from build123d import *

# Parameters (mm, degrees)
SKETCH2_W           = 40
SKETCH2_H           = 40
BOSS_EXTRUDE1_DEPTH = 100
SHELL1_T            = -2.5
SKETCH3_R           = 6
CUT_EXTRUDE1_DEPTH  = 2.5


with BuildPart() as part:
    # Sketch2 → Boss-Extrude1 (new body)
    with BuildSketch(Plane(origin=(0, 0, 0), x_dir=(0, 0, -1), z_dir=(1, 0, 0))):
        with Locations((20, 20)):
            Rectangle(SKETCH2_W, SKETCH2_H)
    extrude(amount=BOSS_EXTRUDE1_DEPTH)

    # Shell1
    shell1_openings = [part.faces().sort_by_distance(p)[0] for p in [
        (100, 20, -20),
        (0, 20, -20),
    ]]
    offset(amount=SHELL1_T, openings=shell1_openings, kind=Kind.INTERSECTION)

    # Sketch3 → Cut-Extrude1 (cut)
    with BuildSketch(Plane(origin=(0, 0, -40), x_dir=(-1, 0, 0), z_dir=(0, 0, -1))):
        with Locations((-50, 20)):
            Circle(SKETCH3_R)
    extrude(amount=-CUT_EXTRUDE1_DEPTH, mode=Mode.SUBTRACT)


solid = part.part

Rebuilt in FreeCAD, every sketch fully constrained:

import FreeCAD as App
import Part
import Sketcher
from FreeCAD import Vector


def faces_at(feature, points):
    """Names of the faces that lie closest to the given points."""
    faces = feature.Shape.Faces
    near = lambda p: min(range(len(faces)), key=lambda i: faces[i].distToShape(Part.Vertex(*p))[0])
    return sorted({f"Face{near(p) + 1}" for p in points})


def add_polygon(sketch, points):
    """Adds a closed chain of lines whose ends are joined by coincident constraints."""
    first, n = sketch.GeometryCount, len(points)
    for a, b in zip(points, points[1:] + points[:1]):
        sketch.addGeometry(Part.LineSegment(App.Vector(*a, 0), App.Vector(*b, 0)), False)
    for i in range(n):
        sketch.addConstraint(Sketcher.Constraint("Coincident", first + i, 2, first + (i + 1) % n, 1))

doc = App.newDocument("Part")
params = doc.addObject("Spreadsheet::Sheet", "Params")
for row, (alias, value) in enumerate([
    ("sketch1_width", "40 mm"),
    ("pad1_length", "100 mm"),
    ("thickness_wall", "2.5 mm"),
    ("sketch2_diameter", "12 mm"),
    ("pocket1_length", "2.5 mm"),
], start=1):
    params.set(f"A{row}", alias)
    params.set(f"B{row}", "=" + value)
    params.setAlias(f"B{row}", alias)

body = doc.addObject("PartDesign::Body", "Body")

# Sketch on YZ plane
sketch1 = body.newObject("Sketcher::SketchObject", "Sketch")
sketch1.AttachmentSupport = (doc.getObject("YZ_Plane"), [""])
sketch1.MapMode = "FlatFace"
add_polygon(sketch1, [(40, 0), (0, 0), (0, -40), (40, -40)])  # lines 0-3
sketch1.addConstraint([
    Sketcher.Constraint("Horizontal", 0),
    Sketcher.Constraint("Vertical", 1),
    Sketcher.Constraint("Horizontal", 2),
    Sketcher.Constraint("Vertical", 3),
    Sketcher.Constraint("Coincident", 0, 2, -1, 1),
    Sketcher.Constraint("Equal", 2, 1),
    Sketcher.Constraint("DistanceX", 0, 2, 0, 1, 40.0),
])
sketch1.setExpression("Constraints[10]", "Params.sketch1_width")
pad1 = body.newObject("PartDesign::Pad", "Pad")
pad1.Profile = sketch1
pad1.setExpression("Length", "Params.pad1_length")
doc.recompute()

thickness = body.newObject("PartDesign::Thickness", "Thickness")
thickness.Base = (pad1, faces_at(pad1, [(100, 20, -20), (0, 20, -20)]))
thickness.setExpression("Value", "Params.thickness_wall")
thickness.Reversed = True
thickness.Join = "Intersection"

# Sketch on XY plane
sketch2 = body.newObject("Sketcher::SketchObject", "Sketch001")
sketch2.AttachmentSupport = (doc.getObject("XY_Plane"), [""])
sketch2.MapMode = "FlatFace"
sketch2.AttachmentOffset = App.Placement(Vector(0, 0, -40), App.Rotation())
sketch2.addGeometry(Part.Circle(Vector(50, 20, 0), Vector(0, 0, 1), 6), False)
sketch2.addConstraint([
    Sketcher.Constraint("Diameter", 0, 12.0),
    Sketcher.Constraint("DistanceX", -1, 1, 0, 3, 50.0),
    Sketcher.Constraint("DistanceY", -1, 1, 0, 3, 20.0),
])
sketch2.setExpression("Constraints[0]", "Params.sketch2_diameter")
pocket1 = body.newObject("PartDesign::Pocket", "Pocket")
pocket1.Profile = sketch2
pocket1.setExpression("Length", "Params.pocket1_length")
pocket1.Reversed = True

doc.recompute()
